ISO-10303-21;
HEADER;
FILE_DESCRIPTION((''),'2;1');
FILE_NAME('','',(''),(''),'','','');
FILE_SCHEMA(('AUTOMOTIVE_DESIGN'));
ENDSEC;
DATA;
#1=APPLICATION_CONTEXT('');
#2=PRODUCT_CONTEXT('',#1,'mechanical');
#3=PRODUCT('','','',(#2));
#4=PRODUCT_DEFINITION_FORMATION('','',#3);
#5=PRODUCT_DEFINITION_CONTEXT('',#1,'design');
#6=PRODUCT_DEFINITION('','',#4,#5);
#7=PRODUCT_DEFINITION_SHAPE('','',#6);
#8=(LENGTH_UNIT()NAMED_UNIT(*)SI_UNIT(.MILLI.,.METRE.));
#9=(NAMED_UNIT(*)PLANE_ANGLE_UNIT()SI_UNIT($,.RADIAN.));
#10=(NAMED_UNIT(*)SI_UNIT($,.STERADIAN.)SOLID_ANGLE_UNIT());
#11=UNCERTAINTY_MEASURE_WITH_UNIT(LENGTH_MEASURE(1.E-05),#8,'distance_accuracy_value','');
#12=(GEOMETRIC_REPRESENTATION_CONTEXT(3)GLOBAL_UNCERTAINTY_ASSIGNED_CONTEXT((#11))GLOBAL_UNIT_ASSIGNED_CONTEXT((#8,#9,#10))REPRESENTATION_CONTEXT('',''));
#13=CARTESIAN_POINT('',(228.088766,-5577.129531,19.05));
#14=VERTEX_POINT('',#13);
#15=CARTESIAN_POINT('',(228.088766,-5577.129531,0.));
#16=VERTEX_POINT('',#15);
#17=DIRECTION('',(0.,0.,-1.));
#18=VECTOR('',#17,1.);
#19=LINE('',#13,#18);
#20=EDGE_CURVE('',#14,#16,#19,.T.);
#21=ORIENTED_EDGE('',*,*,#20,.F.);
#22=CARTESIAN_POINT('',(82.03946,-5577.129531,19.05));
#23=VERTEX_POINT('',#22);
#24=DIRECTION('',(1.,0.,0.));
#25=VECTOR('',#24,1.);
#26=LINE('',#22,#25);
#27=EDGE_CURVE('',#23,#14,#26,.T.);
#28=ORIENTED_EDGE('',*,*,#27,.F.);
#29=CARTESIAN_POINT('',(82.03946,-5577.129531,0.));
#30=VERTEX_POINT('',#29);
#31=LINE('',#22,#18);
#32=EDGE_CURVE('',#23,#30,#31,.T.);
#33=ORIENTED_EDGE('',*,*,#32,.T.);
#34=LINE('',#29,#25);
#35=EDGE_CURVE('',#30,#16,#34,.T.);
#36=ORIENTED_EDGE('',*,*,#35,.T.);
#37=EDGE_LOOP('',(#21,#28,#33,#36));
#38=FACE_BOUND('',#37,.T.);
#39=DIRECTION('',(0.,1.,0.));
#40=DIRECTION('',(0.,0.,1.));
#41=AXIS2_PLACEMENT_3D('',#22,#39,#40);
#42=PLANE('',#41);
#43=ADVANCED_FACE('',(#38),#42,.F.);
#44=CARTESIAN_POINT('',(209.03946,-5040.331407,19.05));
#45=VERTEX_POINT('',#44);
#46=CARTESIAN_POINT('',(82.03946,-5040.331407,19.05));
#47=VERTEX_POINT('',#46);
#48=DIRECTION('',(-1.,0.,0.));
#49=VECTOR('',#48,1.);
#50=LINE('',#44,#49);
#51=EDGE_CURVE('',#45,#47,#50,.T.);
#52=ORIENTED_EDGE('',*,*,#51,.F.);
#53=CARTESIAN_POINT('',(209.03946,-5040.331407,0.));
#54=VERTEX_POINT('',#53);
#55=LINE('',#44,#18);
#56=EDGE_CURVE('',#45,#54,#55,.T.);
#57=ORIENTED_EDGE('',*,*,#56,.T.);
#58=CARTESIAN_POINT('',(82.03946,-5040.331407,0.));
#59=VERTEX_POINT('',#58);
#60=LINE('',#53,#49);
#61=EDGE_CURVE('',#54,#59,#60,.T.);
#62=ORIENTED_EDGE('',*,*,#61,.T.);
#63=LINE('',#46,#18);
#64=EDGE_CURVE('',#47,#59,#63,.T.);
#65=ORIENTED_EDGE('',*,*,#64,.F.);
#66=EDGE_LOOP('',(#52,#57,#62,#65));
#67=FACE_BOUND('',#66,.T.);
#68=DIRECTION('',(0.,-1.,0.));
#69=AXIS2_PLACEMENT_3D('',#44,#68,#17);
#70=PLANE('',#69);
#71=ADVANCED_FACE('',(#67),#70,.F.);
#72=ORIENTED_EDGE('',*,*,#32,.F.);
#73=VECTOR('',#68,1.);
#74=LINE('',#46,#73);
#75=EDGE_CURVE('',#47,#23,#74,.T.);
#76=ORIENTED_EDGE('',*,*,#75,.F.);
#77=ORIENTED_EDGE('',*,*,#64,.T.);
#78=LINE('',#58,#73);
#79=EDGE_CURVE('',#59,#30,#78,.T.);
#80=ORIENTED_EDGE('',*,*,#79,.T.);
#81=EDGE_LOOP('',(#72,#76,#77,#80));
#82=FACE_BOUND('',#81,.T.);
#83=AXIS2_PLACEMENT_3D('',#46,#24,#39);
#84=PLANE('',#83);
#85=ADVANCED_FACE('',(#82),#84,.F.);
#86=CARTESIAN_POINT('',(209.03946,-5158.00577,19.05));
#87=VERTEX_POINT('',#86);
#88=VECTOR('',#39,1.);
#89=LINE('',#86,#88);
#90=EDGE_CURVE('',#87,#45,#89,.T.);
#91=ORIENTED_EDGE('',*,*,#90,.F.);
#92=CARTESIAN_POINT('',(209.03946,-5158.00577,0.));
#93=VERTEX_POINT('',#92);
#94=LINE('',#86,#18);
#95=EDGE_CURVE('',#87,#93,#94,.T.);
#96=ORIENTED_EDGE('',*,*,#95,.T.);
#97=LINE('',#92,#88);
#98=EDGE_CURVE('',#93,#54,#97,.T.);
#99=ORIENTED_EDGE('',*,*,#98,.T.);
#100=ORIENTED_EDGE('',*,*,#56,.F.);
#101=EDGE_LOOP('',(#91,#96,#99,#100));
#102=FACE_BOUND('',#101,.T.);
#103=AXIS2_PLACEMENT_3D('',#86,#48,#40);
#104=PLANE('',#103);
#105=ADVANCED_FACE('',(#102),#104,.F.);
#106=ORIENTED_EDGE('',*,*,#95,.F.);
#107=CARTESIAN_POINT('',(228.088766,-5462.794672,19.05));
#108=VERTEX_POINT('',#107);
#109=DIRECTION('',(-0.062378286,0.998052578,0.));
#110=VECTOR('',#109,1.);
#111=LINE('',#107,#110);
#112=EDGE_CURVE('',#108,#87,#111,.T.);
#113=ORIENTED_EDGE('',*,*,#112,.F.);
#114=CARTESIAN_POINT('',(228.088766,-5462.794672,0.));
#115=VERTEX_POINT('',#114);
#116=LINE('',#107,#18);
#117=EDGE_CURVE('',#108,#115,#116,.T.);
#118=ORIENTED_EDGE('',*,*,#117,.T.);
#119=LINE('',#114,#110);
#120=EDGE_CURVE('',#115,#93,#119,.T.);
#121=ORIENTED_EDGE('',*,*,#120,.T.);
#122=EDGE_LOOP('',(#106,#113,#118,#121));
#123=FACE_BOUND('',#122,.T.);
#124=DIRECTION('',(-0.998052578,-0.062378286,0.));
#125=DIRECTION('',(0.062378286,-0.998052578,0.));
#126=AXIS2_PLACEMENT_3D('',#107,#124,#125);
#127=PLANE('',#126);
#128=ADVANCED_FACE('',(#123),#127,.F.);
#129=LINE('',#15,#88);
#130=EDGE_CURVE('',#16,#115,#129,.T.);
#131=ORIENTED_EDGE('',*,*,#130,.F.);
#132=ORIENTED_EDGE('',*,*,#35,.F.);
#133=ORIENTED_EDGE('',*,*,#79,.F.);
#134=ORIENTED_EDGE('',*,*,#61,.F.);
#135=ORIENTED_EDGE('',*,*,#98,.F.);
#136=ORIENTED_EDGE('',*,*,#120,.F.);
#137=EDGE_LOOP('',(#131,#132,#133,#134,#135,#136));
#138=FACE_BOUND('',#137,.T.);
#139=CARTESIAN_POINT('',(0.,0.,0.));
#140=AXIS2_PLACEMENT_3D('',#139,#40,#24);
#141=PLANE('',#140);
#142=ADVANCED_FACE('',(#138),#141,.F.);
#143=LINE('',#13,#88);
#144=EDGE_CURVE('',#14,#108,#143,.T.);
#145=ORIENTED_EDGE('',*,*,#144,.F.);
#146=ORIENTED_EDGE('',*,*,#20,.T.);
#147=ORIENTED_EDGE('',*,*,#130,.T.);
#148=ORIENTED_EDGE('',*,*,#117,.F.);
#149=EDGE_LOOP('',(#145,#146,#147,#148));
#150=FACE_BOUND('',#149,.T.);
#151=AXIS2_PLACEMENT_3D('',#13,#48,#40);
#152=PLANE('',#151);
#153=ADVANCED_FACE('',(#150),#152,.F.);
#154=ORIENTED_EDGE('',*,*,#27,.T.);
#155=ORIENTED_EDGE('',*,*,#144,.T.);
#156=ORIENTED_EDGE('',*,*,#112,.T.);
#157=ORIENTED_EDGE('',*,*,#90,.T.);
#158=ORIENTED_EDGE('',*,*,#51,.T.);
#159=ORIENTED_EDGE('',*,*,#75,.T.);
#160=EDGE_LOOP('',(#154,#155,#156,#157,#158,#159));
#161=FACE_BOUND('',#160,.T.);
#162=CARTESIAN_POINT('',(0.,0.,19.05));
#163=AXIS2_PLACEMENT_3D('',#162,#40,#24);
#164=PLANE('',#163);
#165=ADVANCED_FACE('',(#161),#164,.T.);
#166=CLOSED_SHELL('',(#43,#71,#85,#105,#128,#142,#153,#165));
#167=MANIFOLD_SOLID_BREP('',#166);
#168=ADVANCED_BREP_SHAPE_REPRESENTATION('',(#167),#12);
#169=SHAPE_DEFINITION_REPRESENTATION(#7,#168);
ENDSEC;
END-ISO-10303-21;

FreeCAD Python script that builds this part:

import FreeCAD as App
import Part
import Sketcher

V = App.Vector
Q = App.Units.Quantity

doc = App.newDocument("Part")
body = doc.addObject("PartDesign::Body", "Body")

# Sketch on XY plane
sketch1 = body.newObject("Sketcher::SketchObject", "Sketch")
sketch1.AttachmentSupport = (doc.getObject("XY_Plane"), [""])
sketch1.MapMode = "FlatFace"
sketch1.addGeometry([
    Part.LineSegment(V(82.03946, -5040.331407, 0), V(82.03946, -5577.129531, 0)),  # 0
    Part.LineSegment(V(82.03946, -5577.129531, 0), V(228.088766, -5577.129531, 0)),  # 1
    Part.LineSegment(V(228.088766, -5577.129531, 0), V(228.088766, -5462.794672, 0)),  # 2
    Part.LineSegment(V(228.088766, -5462.794672, 0), V(209.03946, -5158.00577, 0)),  # 3
    Part.LineSegment(V(209.03946, -5158.00577, 0), V(209.03946, -5040.331407, 0)),  # 4
    Part.LineSegment(V(209.03946, -5040.331407, 0), V(82.03946, -5040.331407, 0)),  # 5
], False)
sketch1.addConstraint([
    Sketcher.Constraint("Coincident", 0, 2, 1, 1),
    Sketcher.Constraint("Coincident", 1, 2, 2, 1),
    Sketcher.Constraint("Coincident", 2, 2, 3, 1),
    Sketcher.Constraint("Coincident", 3, 2, 4, 1),
    Sketcher.Constraint("Coincident", 4, 2, 5, 1),
    Sketcher.Constraint("Coincident", 5, 2, 0, 1),
    Sketcher.Constraint("Vertical", 0),
    Sketcher.Constraint("Horizontal", 1),
    Sketcher.Constraint("Vertical", 2),
    Sketcher.Constraint("Vertical", 4),
    Sketcher.Constraint("Horizontal", 5),
    Sketcher.Constraint("DistanceX", 5, 2, 5, 1, Q("5 in")),
    Sketcher.Constraint("DistanceX", -1, 1, 0, 2, Q("3.2299 in")),
    Sketcher.Constraint("DistanceY", 2, 1, 2, 2, 114.334859),
    Sketcher.Constraint("DistanceY", 2, 2, 3, 2, 304.788901),
    Sketcher.Constraint("Distance", 3, 305.383612),
    Sketcher.Constraint("DistanceY", 0, 2, 0, 1, 536.798123),
    Sketcher.Constraint("DistanceY", 0, 2, -1, 1, 5577.129531),
])
pad1 = body.newObject("PartDesign::Pad", "Pad")
pad1.Profile = sketch1
pad1.Length = Q("0.75 in")

doc.recompute()
